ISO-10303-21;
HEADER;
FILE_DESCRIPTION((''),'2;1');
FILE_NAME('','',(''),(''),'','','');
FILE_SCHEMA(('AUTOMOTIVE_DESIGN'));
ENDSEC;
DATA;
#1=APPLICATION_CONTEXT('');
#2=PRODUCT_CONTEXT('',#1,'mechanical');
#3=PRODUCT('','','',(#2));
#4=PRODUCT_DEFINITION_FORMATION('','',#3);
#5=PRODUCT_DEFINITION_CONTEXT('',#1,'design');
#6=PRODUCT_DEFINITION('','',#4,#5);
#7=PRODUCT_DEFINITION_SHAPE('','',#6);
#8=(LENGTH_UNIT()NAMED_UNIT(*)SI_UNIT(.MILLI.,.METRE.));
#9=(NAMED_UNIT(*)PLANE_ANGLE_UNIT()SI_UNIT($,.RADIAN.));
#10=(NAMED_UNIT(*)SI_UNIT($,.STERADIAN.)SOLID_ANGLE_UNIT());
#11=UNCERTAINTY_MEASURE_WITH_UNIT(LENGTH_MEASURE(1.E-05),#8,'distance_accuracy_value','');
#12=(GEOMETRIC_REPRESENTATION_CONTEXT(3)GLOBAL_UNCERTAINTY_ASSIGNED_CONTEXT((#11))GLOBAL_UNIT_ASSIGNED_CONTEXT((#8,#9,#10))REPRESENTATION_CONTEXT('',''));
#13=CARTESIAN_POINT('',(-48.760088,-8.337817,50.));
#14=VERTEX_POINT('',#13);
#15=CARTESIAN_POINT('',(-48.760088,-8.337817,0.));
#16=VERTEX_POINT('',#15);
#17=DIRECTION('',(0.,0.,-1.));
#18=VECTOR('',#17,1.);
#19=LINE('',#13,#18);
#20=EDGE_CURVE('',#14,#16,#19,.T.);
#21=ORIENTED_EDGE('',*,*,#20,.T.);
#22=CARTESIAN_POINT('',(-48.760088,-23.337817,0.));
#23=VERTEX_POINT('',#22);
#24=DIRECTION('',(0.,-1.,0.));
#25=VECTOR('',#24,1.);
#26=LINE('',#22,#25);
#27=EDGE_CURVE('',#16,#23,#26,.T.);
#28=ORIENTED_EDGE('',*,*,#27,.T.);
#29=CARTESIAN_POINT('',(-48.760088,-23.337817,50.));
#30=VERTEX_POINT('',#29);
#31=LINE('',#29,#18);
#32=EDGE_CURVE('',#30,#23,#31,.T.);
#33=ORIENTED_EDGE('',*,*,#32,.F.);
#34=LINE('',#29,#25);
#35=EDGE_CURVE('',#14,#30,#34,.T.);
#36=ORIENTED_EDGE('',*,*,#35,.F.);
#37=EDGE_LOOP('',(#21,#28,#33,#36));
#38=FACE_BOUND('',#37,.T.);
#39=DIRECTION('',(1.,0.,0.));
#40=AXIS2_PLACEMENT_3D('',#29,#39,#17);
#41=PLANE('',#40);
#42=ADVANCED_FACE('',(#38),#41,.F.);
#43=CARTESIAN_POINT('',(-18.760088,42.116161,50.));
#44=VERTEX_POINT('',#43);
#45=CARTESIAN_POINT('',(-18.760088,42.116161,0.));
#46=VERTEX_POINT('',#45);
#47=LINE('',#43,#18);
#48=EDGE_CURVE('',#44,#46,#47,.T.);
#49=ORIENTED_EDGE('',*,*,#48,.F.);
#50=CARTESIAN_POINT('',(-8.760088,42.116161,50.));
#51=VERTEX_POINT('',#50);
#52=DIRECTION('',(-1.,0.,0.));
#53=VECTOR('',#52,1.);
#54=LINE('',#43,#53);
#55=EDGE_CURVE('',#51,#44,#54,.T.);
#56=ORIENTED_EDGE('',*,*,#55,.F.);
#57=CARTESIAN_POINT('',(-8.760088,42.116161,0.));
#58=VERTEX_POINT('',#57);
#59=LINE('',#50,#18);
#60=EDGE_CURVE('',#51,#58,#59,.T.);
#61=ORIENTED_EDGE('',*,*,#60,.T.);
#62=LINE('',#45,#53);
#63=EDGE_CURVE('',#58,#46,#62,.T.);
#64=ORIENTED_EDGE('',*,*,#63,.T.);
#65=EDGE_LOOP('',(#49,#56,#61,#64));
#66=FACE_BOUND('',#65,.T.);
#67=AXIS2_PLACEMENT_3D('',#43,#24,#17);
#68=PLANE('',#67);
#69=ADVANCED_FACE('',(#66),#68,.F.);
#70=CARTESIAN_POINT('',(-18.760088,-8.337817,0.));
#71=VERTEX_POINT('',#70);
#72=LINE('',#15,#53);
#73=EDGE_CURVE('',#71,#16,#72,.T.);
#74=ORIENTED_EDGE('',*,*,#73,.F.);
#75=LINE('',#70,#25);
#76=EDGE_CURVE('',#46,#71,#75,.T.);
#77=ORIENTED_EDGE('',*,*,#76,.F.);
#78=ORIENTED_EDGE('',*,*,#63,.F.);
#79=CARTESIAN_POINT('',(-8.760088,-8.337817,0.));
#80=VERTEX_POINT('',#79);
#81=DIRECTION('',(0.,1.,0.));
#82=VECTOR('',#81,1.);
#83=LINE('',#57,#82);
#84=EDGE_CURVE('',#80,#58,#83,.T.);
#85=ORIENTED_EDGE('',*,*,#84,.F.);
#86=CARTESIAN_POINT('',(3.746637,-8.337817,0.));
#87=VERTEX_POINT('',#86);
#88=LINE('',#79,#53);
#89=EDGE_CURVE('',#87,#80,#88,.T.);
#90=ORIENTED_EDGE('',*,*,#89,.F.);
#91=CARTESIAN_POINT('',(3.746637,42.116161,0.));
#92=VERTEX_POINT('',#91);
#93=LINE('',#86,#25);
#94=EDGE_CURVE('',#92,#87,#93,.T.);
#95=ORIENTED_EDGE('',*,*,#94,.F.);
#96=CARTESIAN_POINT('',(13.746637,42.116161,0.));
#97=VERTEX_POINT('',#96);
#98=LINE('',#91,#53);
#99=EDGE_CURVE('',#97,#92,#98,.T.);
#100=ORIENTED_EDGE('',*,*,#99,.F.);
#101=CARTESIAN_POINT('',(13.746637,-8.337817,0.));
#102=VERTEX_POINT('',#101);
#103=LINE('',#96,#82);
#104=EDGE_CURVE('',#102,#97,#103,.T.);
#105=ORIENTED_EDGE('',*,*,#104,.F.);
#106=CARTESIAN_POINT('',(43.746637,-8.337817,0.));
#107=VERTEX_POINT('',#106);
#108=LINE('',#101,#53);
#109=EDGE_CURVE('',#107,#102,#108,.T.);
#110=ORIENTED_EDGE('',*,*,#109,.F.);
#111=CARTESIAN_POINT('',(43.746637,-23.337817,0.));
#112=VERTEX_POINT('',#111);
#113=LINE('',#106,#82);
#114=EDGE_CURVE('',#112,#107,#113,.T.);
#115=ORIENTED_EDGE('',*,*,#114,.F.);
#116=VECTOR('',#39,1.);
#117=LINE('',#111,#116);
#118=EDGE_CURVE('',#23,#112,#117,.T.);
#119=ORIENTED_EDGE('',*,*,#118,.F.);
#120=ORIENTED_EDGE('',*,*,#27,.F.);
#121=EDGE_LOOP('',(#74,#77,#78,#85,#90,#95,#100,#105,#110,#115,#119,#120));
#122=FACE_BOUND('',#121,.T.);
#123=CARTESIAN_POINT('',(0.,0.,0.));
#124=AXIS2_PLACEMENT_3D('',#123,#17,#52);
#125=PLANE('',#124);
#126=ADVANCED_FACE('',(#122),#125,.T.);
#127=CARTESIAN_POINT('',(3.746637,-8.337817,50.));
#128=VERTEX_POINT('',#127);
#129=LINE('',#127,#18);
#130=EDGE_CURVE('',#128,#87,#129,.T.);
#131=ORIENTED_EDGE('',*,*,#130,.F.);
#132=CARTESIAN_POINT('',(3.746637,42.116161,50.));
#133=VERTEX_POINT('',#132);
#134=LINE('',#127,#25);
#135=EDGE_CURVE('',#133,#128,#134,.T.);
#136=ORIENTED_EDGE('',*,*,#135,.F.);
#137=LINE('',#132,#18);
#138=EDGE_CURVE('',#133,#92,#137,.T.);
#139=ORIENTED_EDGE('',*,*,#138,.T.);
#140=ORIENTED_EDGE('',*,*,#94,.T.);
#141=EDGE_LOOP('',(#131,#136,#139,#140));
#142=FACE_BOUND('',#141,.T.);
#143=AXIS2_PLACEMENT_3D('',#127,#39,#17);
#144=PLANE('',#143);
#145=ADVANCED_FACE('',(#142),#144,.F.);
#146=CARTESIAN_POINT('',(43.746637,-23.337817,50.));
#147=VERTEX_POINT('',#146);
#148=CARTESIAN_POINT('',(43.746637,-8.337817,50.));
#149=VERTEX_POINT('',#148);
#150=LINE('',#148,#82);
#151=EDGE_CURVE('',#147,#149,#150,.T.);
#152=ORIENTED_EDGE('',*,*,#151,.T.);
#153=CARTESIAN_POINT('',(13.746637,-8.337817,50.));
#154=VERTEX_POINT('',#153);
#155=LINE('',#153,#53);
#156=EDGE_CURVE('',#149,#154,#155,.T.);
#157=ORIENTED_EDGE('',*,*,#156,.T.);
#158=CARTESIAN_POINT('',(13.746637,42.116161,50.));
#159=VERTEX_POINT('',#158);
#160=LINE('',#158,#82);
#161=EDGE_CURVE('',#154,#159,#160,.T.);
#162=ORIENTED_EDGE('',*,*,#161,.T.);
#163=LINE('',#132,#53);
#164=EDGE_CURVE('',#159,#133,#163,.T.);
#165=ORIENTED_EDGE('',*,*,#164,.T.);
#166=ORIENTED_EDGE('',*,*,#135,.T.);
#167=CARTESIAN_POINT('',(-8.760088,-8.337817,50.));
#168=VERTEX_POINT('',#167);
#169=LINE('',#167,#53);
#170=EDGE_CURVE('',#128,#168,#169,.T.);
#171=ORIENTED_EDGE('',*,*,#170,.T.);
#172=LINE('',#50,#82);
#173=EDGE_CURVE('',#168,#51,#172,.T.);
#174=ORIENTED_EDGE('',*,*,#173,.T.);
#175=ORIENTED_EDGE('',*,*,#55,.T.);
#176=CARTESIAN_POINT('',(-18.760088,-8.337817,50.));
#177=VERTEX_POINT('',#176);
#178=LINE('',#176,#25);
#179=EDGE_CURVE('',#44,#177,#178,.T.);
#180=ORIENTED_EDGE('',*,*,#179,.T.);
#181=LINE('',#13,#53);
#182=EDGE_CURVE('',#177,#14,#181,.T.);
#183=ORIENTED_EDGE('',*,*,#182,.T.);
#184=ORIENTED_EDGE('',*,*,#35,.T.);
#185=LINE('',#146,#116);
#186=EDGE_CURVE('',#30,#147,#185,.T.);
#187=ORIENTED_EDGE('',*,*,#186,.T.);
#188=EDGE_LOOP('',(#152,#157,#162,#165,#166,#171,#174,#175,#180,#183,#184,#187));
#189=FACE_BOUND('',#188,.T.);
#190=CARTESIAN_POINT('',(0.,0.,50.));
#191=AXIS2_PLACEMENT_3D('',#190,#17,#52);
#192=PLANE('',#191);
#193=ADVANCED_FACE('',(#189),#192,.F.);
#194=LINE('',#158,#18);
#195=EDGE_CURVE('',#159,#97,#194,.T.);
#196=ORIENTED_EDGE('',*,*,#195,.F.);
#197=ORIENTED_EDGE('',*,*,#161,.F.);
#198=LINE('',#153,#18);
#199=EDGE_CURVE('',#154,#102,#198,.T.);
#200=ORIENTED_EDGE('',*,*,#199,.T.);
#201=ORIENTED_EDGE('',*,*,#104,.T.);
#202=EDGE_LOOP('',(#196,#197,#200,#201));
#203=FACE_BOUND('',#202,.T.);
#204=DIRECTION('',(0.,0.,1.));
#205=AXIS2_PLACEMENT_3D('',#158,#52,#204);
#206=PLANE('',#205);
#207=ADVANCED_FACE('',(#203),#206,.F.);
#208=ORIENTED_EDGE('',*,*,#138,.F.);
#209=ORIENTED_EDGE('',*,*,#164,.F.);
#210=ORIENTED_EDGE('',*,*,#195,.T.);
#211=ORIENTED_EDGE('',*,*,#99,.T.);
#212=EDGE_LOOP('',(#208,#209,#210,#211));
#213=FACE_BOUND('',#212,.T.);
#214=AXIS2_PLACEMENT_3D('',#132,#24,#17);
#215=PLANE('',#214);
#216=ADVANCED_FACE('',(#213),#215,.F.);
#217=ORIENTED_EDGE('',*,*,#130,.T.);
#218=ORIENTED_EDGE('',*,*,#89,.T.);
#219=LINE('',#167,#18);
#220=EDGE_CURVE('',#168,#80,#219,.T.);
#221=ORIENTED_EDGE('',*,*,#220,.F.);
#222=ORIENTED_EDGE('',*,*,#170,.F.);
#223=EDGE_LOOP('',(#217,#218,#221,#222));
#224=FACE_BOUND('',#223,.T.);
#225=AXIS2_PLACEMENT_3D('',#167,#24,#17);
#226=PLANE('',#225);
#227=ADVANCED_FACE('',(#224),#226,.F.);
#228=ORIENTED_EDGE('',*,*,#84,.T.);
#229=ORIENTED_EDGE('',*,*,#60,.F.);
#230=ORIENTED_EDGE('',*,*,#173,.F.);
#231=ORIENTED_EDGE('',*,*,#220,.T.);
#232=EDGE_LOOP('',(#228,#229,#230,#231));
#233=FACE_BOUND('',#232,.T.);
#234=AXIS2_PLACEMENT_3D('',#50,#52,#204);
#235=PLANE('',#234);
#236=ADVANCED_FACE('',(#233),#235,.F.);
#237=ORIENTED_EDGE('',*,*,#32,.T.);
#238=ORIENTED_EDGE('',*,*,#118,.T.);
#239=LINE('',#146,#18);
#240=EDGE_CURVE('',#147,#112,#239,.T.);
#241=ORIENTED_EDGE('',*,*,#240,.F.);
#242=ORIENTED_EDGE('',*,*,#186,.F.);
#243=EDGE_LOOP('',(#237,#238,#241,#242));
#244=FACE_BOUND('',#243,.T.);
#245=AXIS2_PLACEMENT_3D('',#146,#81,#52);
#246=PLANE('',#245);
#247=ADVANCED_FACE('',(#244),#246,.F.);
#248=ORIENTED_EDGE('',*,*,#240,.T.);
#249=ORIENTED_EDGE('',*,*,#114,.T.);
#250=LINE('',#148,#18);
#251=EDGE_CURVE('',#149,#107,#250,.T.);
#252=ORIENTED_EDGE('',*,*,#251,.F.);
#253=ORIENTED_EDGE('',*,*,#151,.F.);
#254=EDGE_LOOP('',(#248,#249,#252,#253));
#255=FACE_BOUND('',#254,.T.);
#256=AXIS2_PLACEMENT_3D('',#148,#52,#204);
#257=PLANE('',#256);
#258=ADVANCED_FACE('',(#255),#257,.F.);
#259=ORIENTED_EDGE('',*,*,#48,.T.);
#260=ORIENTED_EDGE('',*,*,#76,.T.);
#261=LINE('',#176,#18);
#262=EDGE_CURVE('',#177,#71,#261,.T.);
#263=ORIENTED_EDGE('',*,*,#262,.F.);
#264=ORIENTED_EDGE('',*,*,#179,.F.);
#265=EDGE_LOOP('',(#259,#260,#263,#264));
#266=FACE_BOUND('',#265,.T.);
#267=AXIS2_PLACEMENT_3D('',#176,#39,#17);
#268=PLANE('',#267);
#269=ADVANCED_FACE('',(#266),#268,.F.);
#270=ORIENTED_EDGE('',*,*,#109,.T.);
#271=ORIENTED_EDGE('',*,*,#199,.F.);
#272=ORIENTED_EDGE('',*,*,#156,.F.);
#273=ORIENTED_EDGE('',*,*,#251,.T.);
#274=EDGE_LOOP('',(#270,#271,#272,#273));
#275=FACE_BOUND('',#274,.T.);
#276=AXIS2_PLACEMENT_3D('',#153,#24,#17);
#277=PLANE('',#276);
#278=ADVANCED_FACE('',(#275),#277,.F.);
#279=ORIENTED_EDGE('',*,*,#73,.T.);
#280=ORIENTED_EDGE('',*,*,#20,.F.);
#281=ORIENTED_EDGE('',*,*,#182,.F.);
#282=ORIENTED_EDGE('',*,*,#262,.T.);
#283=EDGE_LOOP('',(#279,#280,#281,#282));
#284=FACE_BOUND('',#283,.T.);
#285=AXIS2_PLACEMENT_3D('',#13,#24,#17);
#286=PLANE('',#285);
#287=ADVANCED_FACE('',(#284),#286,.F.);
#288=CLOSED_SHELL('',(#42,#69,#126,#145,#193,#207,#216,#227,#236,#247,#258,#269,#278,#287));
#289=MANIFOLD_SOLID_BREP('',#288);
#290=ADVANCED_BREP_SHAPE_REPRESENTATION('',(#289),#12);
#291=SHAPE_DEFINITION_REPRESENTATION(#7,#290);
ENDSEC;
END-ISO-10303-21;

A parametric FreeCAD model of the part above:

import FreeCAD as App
import Part
import Sketcher
from FreeCAD import Vector
Q = App.Units.Quantity


def add_polygon(sketch, points):
    """Adds a closed chain of lines whose ends are joined by coincident constraints."""
    first, n = sketch.GeometryCount, len(points)
    for a, b in zip(points, points[1:] + points[:1]):
        sketch.addGeometry(Part.LineSegment(App.Vector(*a, 0), App.Vector(*b, 0)), False)
    for i in range(n):
        sketch.addConstraint(Sketcher.Constraint("Coincident", first + i, 2, first + (i + 1) % n, 1))

doc = App.newDocument("Part")
body = doc.addObject("PartDesign::Body", "Body")

# Sketch on XY plane
sketch1 = doc.addObject("Sketcher::SketchObject", "Sketch")
body.addObject(sketch1)
sketch1.AttachmentSupport = (doc.XY_Plane, [""])
sketch1.MapMode = "FlatFace"
add_polygon(sketch1, [(-18.760088, -8.337817), (-48.760088, -8.337817), (-48.760088, -23.337817), (43.746637, -23.337817), (43.746637, -8.337817), (13.746637, -8.337817), (13.746637, 42.116161), (3.746637, 42.116161), (3.746637, -8.337817), (-8.760088, -8.337817), (-8.760088, 42.116161), (-18.760088, 42.116161)])  # lines 0-11
sketch1.addConstraint(Sketcher.Constraint("Horizontal", 0))
sketch1.addConstraint(Sketcher.Constraint("Vertical", 1))
sketch1.addConstraint(Sketcher.Constraint("Horizontal", 2))
sketch1.addConstraint(Sketcher.Constraint("Vertical", 3))
sketch1.addConstraint(Sketcher.Constraint("Horizontal", 4))
sketch1.addConstraint(Sketcher.Constraint("Vertical", 5))
sketch1.addConstraint(Sketcher.Constraint("Horizontal", 6))
sketch1.addConstraint(Sketcher.Constraint("Vertical", 7))
sketch1.addConstraint(Sketcher.Constraint("Horizontal", 8))
sketch1.addConstraint(Sketcher.Constraint("Vertical", 9))
sketch1.addConstraint(Sketcher.Constraint("Horizontal", 10))
sketch1.addConstraint(Sketcher.Constraint("Vertical", 11))
sketch1.addConstraint(Sketcher.Constraint("Horizontal", 0, 2, 3, 2))
sketch1.addConstraint(Sketcher.Constraint("Horizontal", 4, 2, 7, 2))
sketch1.addConstraint(Sketcher.Constraint("Horizontal", 6, 2, 9, 2))
sketch1.addConstraint(Sketcher.Constraint("Equal", 0, 4))
sketch1.addConstraint(Sketcher.Constraint("Equal", 6, 10))
sketch1.addConstraint(Sketcher.Constraint("DistanceX", 0, 2, 0, 1, Q("30 mm")))
sketch1.addConstraint(Sketcher.Constraint("DistanceX", 6, 2, 6, 1, Q("10 mm")))
sketch1.addConstraint(Sketcher.Constraint("DistanceY", 1, 2, 1, 1, Q("15 mm")))
sketch1.addConstraint(Sketcher.Constraint("DistanceX", 2, 1, 2, 2, Q("92.506726 mm")))
sketch1.addConstraint(Sketcher.Constraint("DistanceY", 5, 1, 5, 2, Q("50.453978 mm")))
sketch1.addConstraint(Sketcher.Constraint("DistanceX", 0, 2, -1, 1, Q("48.760088 mm")))
sketch1.addConstraint(Sketcher.Constraint("DistanceY", -1, 1, 5, 2, Q("42.116161 mm")))
pad1 = doc.addObject("PartDesign::Pad", "Pad")
body.addObject(pad1)
pad1.Profile = sketch1
pad1.Length = 50

doc.recompute()
